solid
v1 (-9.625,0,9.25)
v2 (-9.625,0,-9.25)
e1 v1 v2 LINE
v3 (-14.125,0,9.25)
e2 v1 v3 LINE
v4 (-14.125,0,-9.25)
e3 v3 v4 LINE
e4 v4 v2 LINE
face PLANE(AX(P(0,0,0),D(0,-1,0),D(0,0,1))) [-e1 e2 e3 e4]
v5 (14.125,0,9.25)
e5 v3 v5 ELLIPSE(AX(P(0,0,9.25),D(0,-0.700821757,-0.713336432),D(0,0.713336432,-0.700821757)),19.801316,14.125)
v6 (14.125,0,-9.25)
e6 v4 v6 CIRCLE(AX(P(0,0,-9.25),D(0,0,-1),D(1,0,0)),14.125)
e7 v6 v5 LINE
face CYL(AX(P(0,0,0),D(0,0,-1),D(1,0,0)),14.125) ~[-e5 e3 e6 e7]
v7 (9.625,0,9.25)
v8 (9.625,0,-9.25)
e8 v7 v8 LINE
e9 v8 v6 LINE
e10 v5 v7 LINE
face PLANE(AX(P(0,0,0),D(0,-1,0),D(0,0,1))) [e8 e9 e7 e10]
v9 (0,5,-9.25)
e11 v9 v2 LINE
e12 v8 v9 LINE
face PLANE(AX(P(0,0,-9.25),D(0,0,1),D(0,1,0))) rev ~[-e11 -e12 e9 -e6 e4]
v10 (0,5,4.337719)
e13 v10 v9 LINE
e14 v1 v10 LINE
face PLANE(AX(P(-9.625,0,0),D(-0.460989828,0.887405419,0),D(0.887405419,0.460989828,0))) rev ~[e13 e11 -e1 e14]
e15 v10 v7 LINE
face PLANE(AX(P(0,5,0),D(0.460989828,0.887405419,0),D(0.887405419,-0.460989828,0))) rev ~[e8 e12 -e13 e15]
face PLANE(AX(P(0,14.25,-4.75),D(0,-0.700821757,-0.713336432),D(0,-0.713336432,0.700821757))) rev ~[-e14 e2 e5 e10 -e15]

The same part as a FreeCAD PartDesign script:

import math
import FreeCAD as App
import Part
import Sketcher

V = App.Vector
Q = App.Units.Quantity


def add_polygon(sketch, points):
    """Adds a closed chain of lines whose ends are joined by coincident constraints."""
    first, n = sketch.GeometryCount, len(points)
    for a, b in zip(points, points[1:] + points[:1]):
        sketch.addGeometry(Part.LineSegment(App.Vector(*a, 0), App.Vector(*b, 0)), False)
    for i in range(n):
        sketch.addConstraint(Sketcher.Constraint("Coincident", first + i, 2, first + (i + 1) % n, 1))

doc = App.newDocument("Part")
body = doc.addObject("PartDesign::Body", "Body")

sketch1 = body.newObject("Sketcher::SketchObject", "Sketch")
sketch1.AttachmentSupport = (doc.getObject("YZ_Plane"), [""])
sketch1.MapMode = "FlatFace"
add_polygon(sketch1, [(0, 9.25), (0, -9.25), (14.25, -9.25), (14.25, -4.75)])
sketch1.addConstraint([
    Sketcher.Constraint("Vertical", 0),
    Sketcher.Constraint("Horizontal", 1),
    Sketcher.Constraint("Vertical", 2),
    Sketcher.Constraint("Symmetric", 0, 2, 3, 2, -1, 1),
    Sketcher.Constraint("DistanceY", 2, 1, 2, 2, Q("4.5 mm")),
    Sketcher.Constraint("DistanceX", 1, 1, 1, 2, Q("14.25 mm")),
    Sketcher.Constraint("DistanceY", 0, 2, -1, 1, Q("9.25 mm")),
])
pad1 = body.newObject("PartDesign::Pad", "Pad")
pad1.Profile = sketch1
pad1.Length = 28.25
pad1.Midplane = True

sketch2 = body.newObject("Sketcher::SketchObject", "Sketch001")
sketch2.AttachmentSupport = (doc.getObject("XY_Plane"), [""])
sketch2.MapMode = "FlatFace"
add_polygon(sketch2, [(25, 30), (-25, 30), (-25, -20), (25, -20)])
sketch2.addGeometry(Part.LineSegment(V(-9.625, 0, 0), V(-14.125, 0, 0)), False)
sketch2.addGeometry(Part.ArcOfCircle(Part.Circle(V(0, 0, 0), V(0, 0, 1), 14.125), math.radians(0), math.radians(180)), False)
sketch2.addGeometry(Part.LineSegment(V(14.125, 0, 0), V(9.625, 0, 0)), False)
sketch2.addGeometry(Part.LineSegment(V(9.625, 0, 0), V(0, 5, 0)), False)
sketch2.addGeometry(Part.LineSegment(V(0, 5, 0), V(-9.625, 0, 0)), False)
sketch2.addConstraint([
    Sketcher.Constraint("Coincident", 4, 2, 5, 2),
    Sketcher.Constraint("Coincident", 5, 1, 6, 1),
    Sketcher.Constraint("Coincident", 6, 2, 7, 1),
    Sketcher.Constraint("Coincident", 7, 2, 8, 1),
    Sketcher.Constraint("Coincident", 8, 2, 4, 1),
    Sketcher.Constraint("Horizontal", 0),
    Sketcher.Constraint("Vertical", 1),
    Sketcher.Constraint("Horizontal", 2),
    Sketcher.Constraint("Vertical", 3),
    Sketcher.Constraint("Horizontal", 4),
    Sketcher.Constraint("Horizontal", 6),
    Sketcher.Constraint("Coincident", 5, 3, -1, 1),
    Sketcher.Constraint("Symmetric", 6, 2, 8, 2, -1, 1),
    Sketcher.Constraint("PointOnObject", 4, 2, -1),
    Sketcher.Constraint("PointOnObject", 7, 2, -2),
    Sketcher.Constraint("Equal", 2, 1),
    Sketcher.Constraint("DistanceX", 0, 2, 0, 1, Q("50 mm")),
    Sketcher.Constraint("DistanceX", 4, 2, 4, 1, Q("4.5 mm")),
    Sketcher.Constraint("DistanceY", -1, 1, 7, 2, Q("5 mm")),
    Sketcher.Constraint("Radius", 5, Q("14.125 mm")),
    Sketcher.Constraint("DistanceX", 0, 2, -1, 1, Q("25 mm")),
    Sketcher.Constraint("DistanceY", -1, 1, 0, 2, Q("30 mm")),
])
pocket1 = body.newObject("PartDesign::Pocket", "Pocket")
pocket1.Profile = sketch2
pocket1.Length = 28.25
pocket1.Midplane = True

doc.recompute()
